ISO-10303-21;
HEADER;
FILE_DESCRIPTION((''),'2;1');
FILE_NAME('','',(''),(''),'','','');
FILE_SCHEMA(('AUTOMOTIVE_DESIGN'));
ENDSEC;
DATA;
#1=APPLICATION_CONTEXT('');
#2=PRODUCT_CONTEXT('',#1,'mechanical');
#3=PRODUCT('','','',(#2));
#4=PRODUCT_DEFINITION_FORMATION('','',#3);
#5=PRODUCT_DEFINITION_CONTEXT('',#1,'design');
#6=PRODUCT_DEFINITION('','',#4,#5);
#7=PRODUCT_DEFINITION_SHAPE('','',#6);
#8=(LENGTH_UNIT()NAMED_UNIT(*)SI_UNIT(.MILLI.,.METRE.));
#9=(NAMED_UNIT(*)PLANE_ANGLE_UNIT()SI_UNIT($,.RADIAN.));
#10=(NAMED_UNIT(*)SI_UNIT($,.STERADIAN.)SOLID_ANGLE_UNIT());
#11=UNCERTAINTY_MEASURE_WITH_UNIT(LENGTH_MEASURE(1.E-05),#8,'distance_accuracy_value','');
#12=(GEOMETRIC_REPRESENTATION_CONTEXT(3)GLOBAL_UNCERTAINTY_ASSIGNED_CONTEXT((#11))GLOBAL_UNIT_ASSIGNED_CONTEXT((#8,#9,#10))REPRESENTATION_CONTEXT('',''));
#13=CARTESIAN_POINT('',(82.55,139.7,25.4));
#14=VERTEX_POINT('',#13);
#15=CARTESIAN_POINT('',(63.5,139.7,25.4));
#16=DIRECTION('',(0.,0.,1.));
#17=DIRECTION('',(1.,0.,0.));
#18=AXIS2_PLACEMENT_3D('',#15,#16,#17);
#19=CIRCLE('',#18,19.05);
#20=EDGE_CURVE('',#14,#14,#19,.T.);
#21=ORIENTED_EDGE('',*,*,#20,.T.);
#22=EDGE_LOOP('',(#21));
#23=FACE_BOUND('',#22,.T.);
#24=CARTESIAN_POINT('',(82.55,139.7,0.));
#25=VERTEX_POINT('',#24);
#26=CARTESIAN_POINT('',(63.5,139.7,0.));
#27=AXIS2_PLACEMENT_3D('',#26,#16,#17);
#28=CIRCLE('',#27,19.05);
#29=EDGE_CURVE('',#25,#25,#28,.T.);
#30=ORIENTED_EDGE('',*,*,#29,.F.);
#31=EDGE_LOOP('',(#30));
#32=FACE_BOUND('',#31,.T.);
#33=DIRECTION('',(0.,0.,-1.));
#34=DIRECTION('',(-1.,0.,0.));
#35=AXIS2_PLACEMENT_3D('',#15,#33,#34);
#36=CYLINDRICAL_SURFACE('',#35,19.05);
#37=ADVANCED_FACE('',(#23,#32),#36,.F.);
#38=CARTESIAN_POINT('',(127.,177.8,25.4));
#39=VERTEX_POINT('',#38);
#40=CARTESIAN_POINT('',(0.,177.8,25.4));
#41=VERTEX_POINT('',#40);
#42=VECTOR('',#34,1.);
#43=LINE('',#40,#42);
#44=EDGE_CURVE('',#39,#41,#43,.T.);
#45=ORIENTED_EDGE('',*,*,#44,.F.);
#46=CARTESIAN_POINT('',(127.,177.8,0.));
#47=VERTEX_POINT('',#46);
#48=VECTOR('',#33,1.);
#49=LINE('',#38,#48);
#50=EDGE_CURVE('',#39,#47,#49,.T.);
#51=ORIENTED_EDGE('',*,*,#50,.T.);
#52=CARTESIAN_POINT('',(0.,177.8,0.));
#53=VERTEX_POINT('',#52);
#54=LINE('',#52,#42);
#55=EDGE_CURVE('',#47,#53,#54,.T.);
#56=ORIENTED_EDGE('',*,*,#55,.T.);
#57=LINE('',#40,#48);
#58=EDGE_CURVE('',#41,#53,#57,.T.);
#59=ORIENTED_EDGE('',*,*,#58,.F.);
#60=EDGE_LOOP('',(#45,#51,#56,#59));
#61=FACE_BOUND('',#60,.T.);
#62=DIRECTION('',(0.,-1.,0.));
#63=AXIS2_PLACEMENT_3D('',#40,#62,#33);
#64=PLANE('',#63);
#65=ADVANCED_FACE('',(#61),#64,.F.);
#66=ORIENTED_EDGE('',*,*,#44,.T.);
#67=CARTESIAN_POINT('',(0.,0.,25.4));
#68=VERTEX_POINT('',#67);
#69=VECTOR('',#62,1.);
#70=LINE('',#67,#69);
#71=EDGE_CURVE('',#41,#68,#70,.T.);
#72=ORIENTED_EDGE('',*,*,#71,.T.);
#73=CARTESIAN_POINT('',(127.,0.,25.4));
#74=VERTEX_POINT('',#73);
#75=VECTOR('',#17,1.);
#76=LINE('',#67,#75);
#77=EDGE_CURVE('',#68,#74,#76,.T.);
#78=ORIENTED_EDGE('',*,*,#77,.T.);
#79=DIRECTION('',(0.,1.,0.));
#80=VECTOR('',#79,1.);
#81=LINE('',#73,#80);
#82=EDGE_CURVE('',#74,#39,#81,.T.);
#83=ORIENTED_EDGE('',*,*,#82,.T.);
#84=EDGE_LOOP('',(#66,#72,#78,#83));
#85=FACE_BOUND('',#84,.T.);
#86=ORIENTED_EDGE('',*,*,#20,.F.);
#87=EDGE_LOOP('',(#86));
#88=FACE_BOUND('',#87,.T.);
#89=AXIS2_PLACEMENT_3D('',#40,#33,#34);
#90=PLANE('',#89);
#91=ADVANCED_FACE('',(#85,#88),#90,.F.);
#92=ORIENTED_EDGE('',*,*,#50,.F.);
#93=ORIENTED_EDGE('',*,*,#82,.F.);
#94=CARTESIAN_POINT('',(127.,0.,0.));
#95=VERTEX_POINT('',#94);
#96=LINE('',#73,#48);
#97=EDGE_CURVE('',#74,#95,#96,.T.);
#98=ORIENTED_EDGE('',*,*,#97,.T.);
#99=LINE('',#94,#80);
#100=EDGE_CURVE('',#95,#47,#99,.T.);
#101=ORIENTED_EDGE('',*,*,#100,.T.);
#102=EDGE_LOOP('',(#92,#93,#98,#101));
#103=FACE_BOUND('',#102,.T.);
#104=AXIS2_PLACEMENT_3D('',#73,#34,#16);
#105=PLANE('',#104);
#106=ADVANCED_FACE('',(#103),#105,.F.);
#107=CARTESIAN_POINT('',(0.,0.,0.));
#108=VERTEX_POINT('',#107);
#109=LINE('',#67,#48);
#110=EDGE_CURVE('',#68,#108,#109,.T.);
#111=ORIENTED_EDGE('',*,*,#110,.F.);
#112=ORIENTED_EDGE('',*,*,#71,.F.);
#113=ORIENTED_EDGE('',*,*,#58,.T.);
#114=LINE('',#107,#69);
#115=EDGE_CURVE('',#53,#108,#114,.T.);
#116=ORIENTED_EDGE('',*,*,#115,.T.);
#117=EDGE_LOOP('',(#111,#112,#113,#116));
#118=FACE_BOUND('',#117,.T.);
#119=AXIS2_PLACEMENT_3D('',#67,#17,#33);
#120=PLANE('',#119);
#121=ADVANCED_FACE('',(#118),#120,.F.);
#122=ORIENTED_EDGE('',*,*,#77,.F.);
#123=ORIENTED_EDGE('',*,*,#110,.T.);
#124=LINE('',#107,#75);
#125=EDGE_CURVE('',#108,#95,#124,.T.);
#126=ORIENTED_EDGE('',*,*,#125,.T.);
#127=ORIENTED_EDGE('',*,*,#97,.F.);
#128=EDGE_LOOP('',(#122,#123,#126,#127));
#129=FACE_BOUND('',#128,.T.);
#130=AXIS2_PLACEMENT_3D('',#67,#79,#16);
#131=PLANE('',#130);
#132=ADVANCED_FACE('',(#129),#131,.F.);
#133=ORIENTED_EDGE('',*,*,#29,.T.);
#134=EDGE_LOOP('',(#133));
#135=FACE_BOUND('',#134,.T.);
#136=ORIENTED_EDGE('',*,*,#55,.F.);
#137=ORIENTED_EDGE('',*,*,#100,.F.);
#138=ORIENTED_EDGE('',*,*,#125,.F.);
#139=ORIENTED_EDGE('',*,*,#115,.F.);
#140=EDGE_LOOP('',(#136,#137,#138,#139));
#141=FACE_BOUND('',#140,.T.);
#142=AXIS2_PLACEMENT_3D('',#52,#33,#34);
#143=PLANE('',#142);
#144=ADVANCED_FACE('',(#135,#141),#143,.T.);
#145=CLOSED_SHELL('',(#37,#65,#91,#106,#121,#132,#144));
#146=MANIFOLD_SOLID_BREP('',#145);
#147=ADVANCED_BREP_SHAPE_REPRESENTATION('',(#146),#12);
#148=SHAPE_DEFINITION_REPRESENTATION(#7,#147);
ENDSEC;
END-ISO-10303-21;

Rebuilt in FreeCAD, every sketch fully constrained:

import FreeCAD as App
import Part
import Sketcher
Q = App.Units.Quantity

doc = App.newDocument("Part")
params = doc.addObject("Spreadsheet::Sheet", "Params")
for row, (alias, value) in enumerate([
    ("sketch1_diameter", "1.5 in"),
    ("sketch1_width", "5 in"),
    ("sketch1_height", "7 in"),
    ("pad1_length", "1 in"),
], start=1):
    params.set(f"A{row}", alias)
    params.set(f"B{row}", "=" + value)
    params.setAlias(f"B{row}", alias)

body = doc.addObject("PartDesign::Body", "Body")

# Sketch on XY plane
sketch1 = body.newObject("Sketcher::SketchObject", "Sketch")
sketch1.AttachmentSupport = (doc.getObject("XY_Plane"), [""])
sketch1.MapMode = "FlatFace"
sketch1.addGeometry([
    Part.LineSegment(App.Vector(0, 177.8, 0), App.Vector(0, 0, 0)),  # 0
    Part.LineSegment(App.Vector(0, 0, 0), App.Vector(127, 0, 0)),  # 1
    Part.LineSegment(App.Vector(127, 0, 0), App.Vector(127, 177.8, 0)),  # 2
    Part.LineSegment(App.Vector(127, 177.8, 0), App.Vector(0, 177.8, 0)),  # 3
    Part.Circle(App.Vector(63.5, 139.7, 0), App.Vector(0, 0, 1), 19.05),  # 4
], False)
sketch1.addConstraint([
    Sketcher.Constraint("Coincident", 0, 2, 1, 1),
    Sketcher.Constraint("Coincident", 1, 2, 2, 1),
    Sketcher.Constraint("Coincident", 2, 2, 3, 1),
    Sketcher.Constraint("Coincident", 3, 2, 0, 1),
    Sketcher.Constraint("Vertical", 0),
    Sketcher.Constraint("Horizontal", 1),
    Sketcher.Constraint("Vertical", 2),
    Sketcher.Constraint("Horizontal", 3),
    Sketcher.Constraint("Coincident", 0, 2, -1, 1),
    Sketcher.Constraint("Diameter", 4, Q("1.5 in")),
    Sketcher.Constraint("DistanceX", 1, 1, 1, 2, Q("5 in")),
    Sketcher.Constraint("DistanceY", 0, 2, 0, 1, Q("7 in")),
    Sketcher.Constraint("DistanceX", -1, 1, 4, 3, Q("2.5 in")),
    Sketcher.Constraint("DistanceY", -1, 1, 4, 3, Q("5.5 in")),
])
sketch1.setExpression("Constraints[9]", "Params.sketch1_diameter")
sketch1.setExpression("Constraints[10]", "Params.sketch1_width")
sketch1.setExpression("Constraints[11]", "Params.sketch1_height")
pad1 = body.newObject("PartDesign::Pad", "Pad")
pad1.Profile = sketch1
pad1.setExpression("Length", "Params.pad1_length")

doc.recompute()
